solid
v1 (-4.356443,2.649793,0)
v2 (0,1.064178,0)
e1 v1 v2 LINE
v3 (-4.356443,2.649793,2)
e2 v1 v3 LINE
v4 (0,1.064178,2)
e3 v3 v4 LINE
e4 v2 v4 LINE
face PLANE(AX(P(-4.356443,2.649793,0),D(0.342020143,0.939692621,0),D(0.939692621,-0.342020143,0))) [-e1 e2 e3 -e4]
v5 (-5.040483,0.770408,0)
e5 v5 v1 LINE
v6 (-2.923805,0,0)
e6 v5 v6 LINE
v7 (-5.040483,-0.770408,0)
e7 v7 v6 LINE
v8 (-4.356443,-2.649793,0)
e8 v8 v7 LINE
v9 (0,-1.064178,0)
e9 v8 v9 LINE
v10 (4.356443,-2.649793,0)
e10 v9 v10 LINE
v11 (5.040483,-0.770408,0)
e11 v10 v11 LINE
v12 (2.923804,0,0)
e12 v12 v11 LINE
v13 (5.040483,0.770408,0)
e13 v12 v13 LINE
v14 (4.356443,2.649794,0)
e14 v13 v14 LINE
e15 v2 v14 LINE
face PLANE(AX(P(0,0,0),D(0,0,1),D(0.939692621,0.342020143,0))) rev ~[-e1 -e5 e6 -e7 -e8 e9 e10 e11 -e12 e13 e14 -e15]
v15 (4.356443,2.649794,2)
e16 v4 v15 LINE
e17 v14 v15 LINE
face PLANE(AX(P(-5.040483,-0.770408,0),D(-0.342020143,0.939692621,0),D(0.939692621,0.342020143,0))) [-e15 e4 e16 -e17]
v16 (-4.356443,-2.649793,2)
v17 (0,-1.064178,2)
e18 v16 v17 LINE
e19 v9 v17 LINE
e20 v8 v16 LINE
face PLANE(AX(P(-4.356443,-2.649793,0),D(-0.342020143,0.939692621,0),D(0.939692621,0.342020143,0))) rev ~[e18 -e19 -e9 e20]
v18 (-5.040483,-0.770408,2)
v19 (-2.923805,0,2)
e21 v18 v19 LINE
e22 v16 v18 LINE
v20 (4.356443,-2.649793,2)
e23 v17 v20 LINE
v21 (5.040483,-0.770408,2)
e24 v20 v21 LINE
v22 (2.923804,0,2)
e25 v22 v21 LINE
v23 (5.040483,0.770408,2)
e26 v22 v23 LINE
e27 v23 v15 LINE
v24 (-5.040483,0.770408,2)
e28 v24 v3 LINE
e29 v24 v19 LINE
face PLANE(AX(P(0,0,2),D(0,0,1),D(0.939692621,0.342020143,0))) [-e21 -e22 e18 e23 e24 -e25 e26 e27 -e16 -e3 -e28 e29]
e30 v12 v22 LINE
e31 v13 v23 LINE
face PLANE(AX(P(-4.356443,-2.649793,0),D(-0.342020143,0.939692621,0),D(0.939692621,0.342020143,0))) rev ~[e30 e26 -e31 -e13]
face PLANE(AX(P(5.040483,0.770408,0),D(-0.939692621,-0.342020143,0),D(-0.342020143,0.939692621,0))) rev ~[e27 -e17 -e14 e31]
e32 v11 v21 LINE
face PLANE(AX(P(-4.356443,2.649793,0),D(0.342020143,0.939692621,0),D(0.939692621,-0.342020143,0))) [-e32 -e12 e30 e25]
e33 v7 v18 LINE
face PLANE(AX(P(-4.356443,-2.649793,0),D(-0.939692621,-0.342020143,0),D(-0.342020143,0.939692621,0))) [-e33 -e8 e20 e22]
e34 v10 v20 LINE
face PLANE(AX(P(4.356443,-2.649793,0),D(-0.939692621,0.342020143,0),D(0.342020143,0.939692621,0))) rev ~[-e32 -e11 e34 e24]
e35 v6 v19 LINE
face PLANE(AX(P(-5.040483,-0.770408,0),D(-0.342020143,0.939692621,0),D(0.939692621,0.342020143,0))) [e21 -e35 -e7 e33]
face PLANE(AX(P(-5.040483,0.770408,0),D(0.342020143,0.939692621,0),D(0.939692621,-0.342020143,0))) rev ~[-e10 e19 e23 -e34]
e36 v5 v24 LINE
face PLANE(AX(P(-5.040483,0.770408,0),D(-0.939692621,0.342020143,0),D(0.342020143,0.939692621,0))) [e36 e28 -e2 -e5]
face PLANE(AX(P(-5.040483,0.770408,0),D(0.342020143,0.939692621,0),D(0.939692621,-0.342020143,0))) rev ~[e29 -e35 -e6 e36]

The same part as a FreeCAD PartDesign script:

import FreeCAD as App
import Part
import Sketcher
Q = App.Units.Quantity

doc = App.newDocument("Part")
params = doc.addObject("Spreadsheet::Sheet", "Params")
for row, (alias, value) in enumerate([
    ("sketch1_width", "10 mm"),
    ("sketch1_height", "2 mm"),
    ("pad1_length", "2 mm"),
    ("sketch2_width", "10 mm"),
    ("sketch2_height", "2 mm"),
    ("pad2_length", "2 mm"),
], start=1):
    params.set(f"A{row}", alias)
    params.set(f"B{row}", "=" + value)
    params.setAlias(f"B{row}", alias)

body = doc.addObject("PartDesign::Body", "Body")

# Sketch on XY plane
sketch1 = body.newObject("Sketcher::SketchObject", "Sketch")
sketch1.AttachmentSupport = (doc.getObject("XY_Plane"), [""])
sketch1.MapMode = "FlatFace"
sketch1.addGeometry([
    Part.LineSegment(App.Vector(0, 2, 0), App.Vector(0, 0, 0)),
    Part.LineSegment(App.Vector(0, 0, 0), App.Vector(10, 0, 0)),
    Part.LineSegment(App.Vector(10, 0, 0), App.Vector(10, 2, 0)),
    Part.LineSegment(App.Vector(10, 2, 0), App.Vector(0, 2, 0)),
], False)
sketch1.addConstraint([
    Sketcher.Constraint("Coincident", 0, 2, 1, 1),
    Sketcher.Constraint("Coincident", 1, 2, 2, 1),
    Sketcher.Constraint("Coincident", 2, 2, 3, 1),
    Sketcher.Constraint("Coincident", 3, 2, 0, 1),
    Sketcher.Constraint("Vertical", 0),
    Sketcher.Constraint("Horizontal", 1),
    Sketcher.Constraint("Vertical", 2),
    Sketcher.Constraint("Horizontal", 3),
    Sketcher.Constraint("Coincident", 0, 2, -1, 1),
    Sketcher.Constraint("DistanceX", 1, 1, 1, 2, Q("10 mm")),
    Sketcher.Constraint("DistanceY", 0, 2, 0, 1, Q("2 mm")),
])
sketch1.setExpression("Constraints[9]", "Params.sketch1_width")
sketch1.setExpression("Constraints[10]", "Params.sketch1_height")
pad1 = body.newObject("PartDesign::Pad", "Pad")
pad1.Profile = sketch1
pad1.setExpression("Length", "Params.pad1_length")
body2 = doc.addObject("PartDesign::Body", "Body001")
doc.recompute()

body.Placement = App.Placement(App.Vector(-4.356443, -2.649793, 0), App.Rotation(App.Vector(0, 0, 1), 20))
boolean = body2.newObject("PartDesign::Boolean", "Boolean")
boolean.Type = "Fuse"
boolean.addObjects([body])
body3 = doc.addObject("PartDesign::Body", "Body002")

# Sketch on XY plane
sketch2 = body3.newObject("Sketcher::SketchObject", "Sketch001")
sketch2.AttachmentSupport = (doc.getObject("XY_Plane002"), [""])
sketch2.MapMode = "FlatFace"
sketch2.addGeometry([
    Part.LineSegment(App.Vector(0, 2, 0), App.Vector(0, 0, 0)),
    Part.LineSegment(App.Vector(0, 0, 0), App.Vector(10, 0, 0)),
    Part.LineSegment(App.Vector(10, 0, 0), App.Vector(10, 2, 0)),
    Part.LineSegment(App.Vector(10, 2, 0), App.Vector(0, 2, 0)),
], False)
sketch2.addConstraint([
    Sketcher.Constraint("Coincident", 0, 2, 1, 1),
    Sketcher.Constraint("Coincident", 1, 2, 2, 1),
    Sketcher.Constraint("Coincident", 2, 2, 3, 1),
    Sketcher.Constraint("Coincident", 3, 2, 0, 1),
    Sketcher.Constraint("Vertical", 0),
    Sketcher.Constraint("Horizontal", 1),
    Sketcher.Constraint("Vertical", 2),
    Sketcher.Constraint("Horizontal", 3),
    Sketcher.Constraint("Coincident", 0, 2, -1, 1),
    Sketcher.Constraint("DistanceX", 1, 1, 1, 2, Q("10 mm")),
    Sketcher.Constraint("DistanceY", 0, 2, 0, 1, Q("2 mm")),
])
sketch2.setExpression("Constraints[9]", "Params.sketch2_width")
sketch2.setExpression("Constraints[10]", "Params.sketch2_height")
pad2 = body3.newObject("PartDesign::Pad", "Pad001")
pad2.Profile = sketch2
pad2.setExpression("Length", "Params.pad2_length")
body4 = doc.addObject("PartDesign::Body", "Body003")
doc.recompute()

body3.Placement = App.Placement(App.Vector(-5.040483, 0.770408, 0), App.Rotation(App.Vector(0, 0, 1), 340))
boolean2 = body4.newObject("PartDesign::Boolean", "Boolean001")
boolean2.Type = "Fuse"
boolean2.addObjects([body3])
doc.recompute()

boolean3 = body4.newObject("PartDesign::Boolean", "Boolean002")
boolean3.Type = "Fuse"
boolean3.addObjects([body2])

doc.recompute()
